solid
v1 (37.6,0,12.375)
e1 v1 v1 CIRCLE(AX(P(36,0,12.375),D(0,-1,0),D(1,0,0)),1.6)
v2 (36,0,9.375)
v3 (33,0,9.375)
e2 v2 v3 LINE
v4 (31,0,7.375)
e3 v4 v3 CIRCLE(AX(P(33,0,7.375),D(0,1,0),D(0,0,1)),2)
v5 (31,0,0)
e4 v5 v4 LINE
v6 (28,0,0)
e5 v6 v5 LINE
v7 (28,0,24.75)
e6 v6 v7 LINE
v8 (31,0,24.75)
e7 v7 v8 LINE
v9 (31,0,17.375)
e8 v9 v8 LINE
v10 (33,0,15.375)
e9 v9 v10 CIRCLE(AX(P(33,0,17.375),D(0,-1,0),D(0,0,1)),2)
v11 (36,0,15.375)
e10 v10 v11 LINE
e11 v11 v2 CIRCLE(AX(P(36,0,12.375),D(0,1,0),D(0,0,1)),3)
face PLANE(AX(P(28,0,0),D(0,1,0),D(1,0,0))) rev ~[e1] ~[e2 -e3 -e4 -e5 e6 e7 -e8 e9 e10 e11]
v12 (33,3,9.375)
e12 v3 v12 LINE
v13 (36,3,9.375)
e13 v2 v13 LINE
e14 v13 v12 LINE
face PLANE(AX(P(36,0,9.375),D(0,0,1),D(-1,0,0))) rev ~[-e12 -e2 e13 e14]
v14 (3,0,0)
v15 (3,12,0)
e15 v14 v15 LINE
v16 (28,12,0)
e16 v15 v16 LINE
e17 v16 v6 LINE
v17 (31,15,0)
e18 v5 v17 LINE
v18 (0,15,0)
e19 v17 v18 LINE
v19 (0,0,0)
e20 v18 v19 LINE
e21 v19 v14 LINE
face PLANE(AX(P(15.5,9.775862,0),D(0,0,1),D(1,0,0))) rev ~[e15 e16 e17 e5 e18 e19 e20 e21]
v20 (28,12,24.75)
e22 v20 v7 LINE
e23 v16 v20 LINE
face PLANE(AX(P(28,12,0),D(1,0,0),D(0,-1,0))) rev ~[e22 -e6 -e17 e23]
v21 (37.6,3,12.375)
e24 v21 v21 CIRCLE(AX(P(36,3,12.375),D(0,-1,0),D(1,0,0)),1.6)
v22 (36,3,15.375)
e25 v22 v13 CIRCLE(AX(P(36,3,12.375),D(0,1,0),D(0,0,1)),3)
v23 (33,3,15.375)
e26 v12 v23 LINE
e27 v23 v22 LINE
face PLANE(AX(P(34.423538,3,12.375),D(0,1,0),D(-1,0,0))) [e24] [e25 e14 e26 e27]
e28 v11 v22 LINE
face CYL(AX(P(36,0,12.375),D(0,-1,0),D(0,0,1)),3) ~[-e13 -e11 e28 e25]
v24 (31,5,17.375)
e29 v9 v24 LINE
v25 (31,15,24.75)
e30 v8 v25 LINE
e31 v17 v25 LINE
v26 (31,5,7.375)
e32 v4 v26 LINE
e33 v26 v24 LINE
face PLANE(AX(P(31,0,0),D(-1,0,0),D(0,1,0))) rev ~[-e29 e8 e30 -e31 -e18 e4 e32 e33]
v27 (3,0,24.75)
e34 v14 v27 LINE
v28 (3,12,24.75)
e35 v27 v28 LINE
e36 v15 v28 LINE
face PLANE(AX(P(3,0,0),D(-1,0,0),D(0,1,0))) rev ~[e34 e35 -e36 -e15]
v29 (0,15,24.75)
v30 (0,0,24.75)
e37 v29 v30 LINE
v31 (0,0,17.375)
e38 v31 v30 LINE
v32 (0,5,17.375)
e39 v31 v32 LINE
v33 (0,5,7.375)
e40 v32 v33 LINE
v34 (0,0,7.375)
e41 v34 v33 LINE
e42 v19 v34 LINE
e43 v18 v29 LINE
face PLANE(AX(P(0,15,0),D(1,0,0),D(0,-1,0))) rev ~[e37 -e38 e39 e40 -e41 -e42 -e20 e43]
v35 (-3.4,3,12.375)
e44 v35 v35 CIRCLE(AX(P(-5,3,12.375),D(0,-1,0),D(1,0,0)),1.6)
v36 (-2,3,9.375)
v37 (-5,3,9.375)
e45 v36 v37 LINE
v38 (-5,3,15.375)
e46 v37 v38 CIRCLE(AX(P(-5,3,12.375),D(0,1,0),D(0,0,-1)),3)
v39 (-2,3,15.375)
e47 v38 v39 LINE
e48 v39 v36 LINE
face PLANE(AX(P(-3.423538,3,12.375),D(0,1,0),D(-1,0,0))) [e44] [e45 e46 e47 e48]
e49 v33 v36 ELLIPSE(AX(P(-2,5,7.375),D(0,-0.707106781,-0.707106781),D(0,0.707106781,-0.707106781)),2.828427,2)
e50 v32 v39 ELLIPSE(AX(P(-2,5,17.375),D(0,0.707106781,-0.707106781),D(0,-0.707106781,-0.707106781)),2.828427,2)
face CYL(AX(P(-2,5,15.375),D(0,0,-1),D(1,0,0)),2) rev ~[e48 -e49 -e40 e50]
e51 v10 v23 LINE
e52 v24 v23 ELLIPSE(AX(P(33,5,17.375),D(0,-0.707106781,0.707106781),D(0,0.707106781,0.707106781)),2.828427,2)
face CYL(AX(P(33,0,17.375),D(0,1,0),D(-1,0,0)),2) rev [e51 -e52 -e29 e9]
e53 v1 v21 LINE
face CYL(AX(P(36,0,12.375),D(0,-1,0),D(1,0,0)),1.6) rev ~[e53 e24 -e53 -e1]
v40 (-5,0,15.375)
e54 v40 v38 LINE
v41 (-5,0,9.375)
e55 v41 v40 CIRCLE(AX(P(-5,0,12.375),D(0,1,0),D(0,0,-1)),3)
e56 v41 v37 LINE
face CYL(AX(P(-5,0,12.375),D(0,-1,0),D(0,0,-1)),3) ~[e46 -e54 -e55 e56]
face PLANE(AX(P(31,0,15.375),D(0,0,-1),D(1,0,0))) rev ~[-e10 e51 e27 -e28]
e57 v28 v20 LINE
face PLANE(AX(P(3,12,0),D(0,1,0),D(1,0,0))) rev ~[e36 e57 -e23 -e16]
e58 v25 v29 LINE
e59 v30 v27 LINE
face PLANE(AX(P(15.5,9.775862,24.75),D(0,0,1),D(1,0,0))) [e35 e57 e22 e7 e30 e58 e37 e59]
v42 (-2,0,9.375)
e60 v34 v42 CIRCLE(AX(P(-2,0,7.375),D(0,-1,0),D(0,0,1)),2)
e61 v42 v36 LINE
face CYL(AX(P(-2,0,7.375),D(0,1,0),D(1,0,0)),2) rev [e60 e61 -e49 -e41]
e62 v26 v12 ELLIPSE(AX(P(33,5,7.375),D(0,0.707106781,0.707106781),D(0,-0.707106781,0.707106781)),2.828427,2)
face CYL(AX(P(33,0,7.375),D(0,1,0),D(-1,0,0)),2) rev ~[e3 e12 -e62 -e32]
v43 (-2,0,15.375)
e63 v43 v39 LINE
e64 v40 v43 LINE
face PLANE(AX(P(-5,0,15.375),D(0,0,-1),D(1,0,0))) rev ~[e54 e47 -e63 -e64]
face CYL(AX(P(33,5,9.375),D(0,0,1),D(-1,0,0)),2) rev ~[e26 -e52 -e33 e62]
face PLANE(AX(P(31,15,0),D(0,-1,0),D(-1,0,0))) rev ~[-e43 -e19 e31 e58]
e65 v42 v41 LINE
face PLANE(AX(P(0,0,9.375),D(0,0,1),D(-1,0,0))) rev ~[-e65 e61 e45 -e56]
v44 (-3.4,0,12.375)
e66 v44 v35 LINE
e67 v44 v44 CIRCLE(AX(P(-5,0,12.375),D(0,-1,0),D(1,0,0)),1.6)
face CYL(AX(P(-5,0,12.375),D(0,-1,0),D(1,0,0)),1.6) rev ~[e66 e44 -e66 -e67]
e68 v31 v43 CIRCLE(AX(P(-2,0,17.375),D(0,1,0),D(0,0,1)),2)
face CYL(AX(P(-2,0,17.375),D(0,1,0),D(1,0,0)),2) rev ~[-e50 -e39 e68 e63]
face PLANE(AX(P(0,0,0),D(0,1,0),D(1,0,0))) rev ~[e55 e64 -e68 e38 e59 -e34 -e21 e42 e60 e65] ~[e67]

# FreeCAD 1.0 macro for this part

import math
import FreeCAD as App
import Part
import Sketcher

V = App.Vector


def edges_at(feature, points):
    """Names of the edges that pass closest to the given points."""
    edges = feature.Shape.Edges
    near = lambda p: min(range(len(edges)), key=lambda i: edges[i].distToShape(Part.Vertex(*p))[0])
    return sorted({f"Edge{near(p) + 1}" for p in points})

doc = App.newDocument("Part")
params = doc.addObject("Spreadsheet::Sheet", "Params")
for row, (alias, value) in enumerate([
    ("sketch1_width", "3 mm"),
    ("sketch1_width2", "25 mm"),
    ("sketch1_height", "12 mm"),
    ("sketch1_height2", "15 mm"),
    ("pad1_length", "24.75 mm"),
    ("sketch2_radius", "3 mm"),
    ("sketch2_diameter", "3.2 mm"),
    ("sketch2_width", "5 mm"),
    ("pad2_length", "3 mm"),
    ("fillet_radius", "2 mm"),
    ("fillet2_radius", "2 mm"),
], start=1):
    params.set(f"A{row}", alias)
    params.set(f"B{row}", "=" + value)
    params.setAlias(f"B{row}", alias)

body = doc.addObject("PartDesign::Body", "Body")

sketch1 = doc.addObject("Sketcher::SketchObject", "Sketch")
body.addObject(sketch1)
sketch1.AttachmentSupport = (doc.XY_Plane, [""])
sketch1.MapMode = "FlatFace"
sketch1.addGeometry([
    Part.LineSegment(V(0, 0, 0), V(3, 0, 0)),
    Part.LineSegment(V(3, 0, 0), V(3, 12, 0)),
    Part.LineSegment(V(3, 12, 0), V(28, 12, 0)),
    Part.LineSegment(V(28, 12, 0), V(28, 0, 0)),
    Part.LineSegment(V(28, 0, 0), V(31, 0, 0)),
    Part.LineSegment(V(31, 0, 0), V(31, 15, 0)),
    Part.LineSegment(V(31, 15, 0), V(0, 15, 0)),
    Part.LineSegment(V(0, 15, 0), V(0, 0, 0)),
], False)
sketch1.addConstraint([
    Sketcher.Constraint("Coincident", 0, 2, 1, 1),
    Sketcher.Constraint("Coincident", 1, 2, 2, 1),
    Sketcher.Constraint("Coincident", 2, 2, 3, 1),
    Sketcher.Constraint("Coincident", 3, 2, 4, 1),
    Sketcher.Constraint("Coincident", 4, 2, 5, 1),
    Sketcher.Constraint("Coincident", 5, 2, 6, 1),
    Sketcher.Constraint("Coincident", 6, 2, 7, 1),
    Sketcher.Constraint("Coincident", 7, 2, 0, 1),
    Sketcher.Constraint("Horizontal", 0),
    Sketcher.Constraint("Vertical", 1),
    Sketcher.Constraint("Horizontal", 2),
    Sketcher.Constraint("Vertical", 3),
    Sketcher.Constraint("Horizontal", 4),
    Sketcher.Constraint("Vertical", 5),
    Sketcher.Constraint("Horizontal", 6),
    Sketcher.Constraint("Vertical", 7),
    Sketcher.Constraint("Coincident", 7, 2, -1, 1),
    Sketcher.Constraint("PointOnObject", 3, 2, -1),
    Sketcher.Constraint("Equal", 0, 4),
    Sketcher.Constraint("DistanceX", 0, 1, 0, 2, 3.0),
    Sketcher.Constraint("DistanceX", 2, 1, 2, 2, 25.0),
    Sketcher.Constraint("DistanceY", 1, 1, 1, 2, 12.0),
    Sketcher.Constraint("DistanceY", 5, 1, 5, 2, 15.0),
])
sketch1.setExpression("Constraints[19]", "Params.sketch1_width")
sketch1.setExpression("Constraints[20]", "Params.sketch1_width2")
sketch1.setExpression("Constraints[21]", "Params.sketch1_height")
sketch1.setExpression("Constraints[22]", "Params.sketch1_height2")
pad1 = doc.addObject("PartDesign::Pad", "Pad")
body.addObject(pad1)
pad1.Profile = sketch1
pad1.setExpression("Length", "Params.pad1_length")

sketch2 = doc.addObject("Sketcher::SketchObject", "Sketch001")
body.addObject(sketch2)
sketch2.AttachmentSupport = (doc.XZ_Plane, [""])
sketch2.MapMode = "FlatFace"
sketch2.addGeometry([
    Part.LineSegment(V(31, 9.4, 0), V(36, 9.4, 0)),
    Part.ArcOfCircle(Part.Circle(V(36, 12.4, 0), V(0, 0, 1), 3), math.radians(-90), math.radians(90)),
    Part.LineSegment(V(36, 15.4, 0), V(31, 15.4, 0)),
    Part.LineSegment(V(31, 15.4, 0), V(31, 9.4, 0)),
    Part.Circle(V(36, 12.4, 0), V(0, 0, 1), 1.6),
    Part.LineSegment(V(0, 9.4, 0), V(0, 15.4, 0)),
    Part.LineSegment(V(0, 15.4, 0), V(-5, 15.4, 0)),
    Part.ArcOfCircle(Part.Circle(V(-5, 12.4, 0), V(0, 0, 1), 3), math.radians(90), math.radians(270)),
    Part.LineSegment(V(-5, 9.4, 0), V(0, 9.4, 0)),
    Part.Circle(V(-5, 12.4, 0), V(0, 0, 1), 1.6),
], False)
sketch2.addConstraint([
    Sketcher.Constraint("Tangent", 0, 2, 1, 1),
    Sketcher.Constraint("Tangent", 1, 2, 2, 1),
    Sketcher.Constraint("Coincident", 2, 2, 3, 1),
    Sketcher.Constraint("Coincident", 3, 2, 0, 1),
    Sketcher.Constraint("Coincident", 5, 2, 6, 1),
    Sketcher.Constraint("Tangent", 6, 2, 7, 1),
    Sketcher.Constraint("Tangent", 7, 2, 8, 1),
    Sketcher.Constraint("Coincident", 8, 2, 5, 1),
    Sketcher.Constraint("Horizontal", 0),
    Sketcher.Constraint("Horizontal", 2),
    Sketcher.Constraint("Vertical", 3),
    Sketcher.Constraint("Vertical", 5),
    Sketcher.Constraint("Horizontal", 6),
    Sketcher.Constraint("Horizontal", 8),
    Sketcher.Constraint("Coincident", 4, 3, 1, 3),
    Sketcher.Constraint("Coincident", 9, 3, 7, 3),
    Sketcher.Constraint("Equal", 1, 7),
    Sketcher.Constraint("Equal", 4, 9),
    Sketcher.Constraint("PointOnObject", 5, 2, -2),
    Sketcher.Constraint("Horizontal", 4, 3, 7, 3),
    Sketcher.Constraint("Equal", 2, 6),
    Sketcher.Constraint("Radius", 1, 3.0),
    Sketcher.Constraint("Diameter", 4, 3.2),
    Sketcher.Constraint("DistanceX", 0, 1, 0, 2, 5.0),
    Sketcher.Constraint("DistanceX", -1, 1, 1, 3, 36.0),
    Sketcher.Constraint("DistanceY", -1, 1, 1, 3, 12.375),
])
sketch2.setExpression("Constraints[21]", "Params.sketch2_radius")
sketch2.setExpression("Constraints[22]", "Params.sketch2_diameter")
sketch2.setExpression("Constraints[23]", "Params.sketch2_width")
pad2 = doc.addObject("PartDesign::Pad", "Pad001")
body.addObject(pad2)
pad2.Profile = sketch2
pad2.setExpression("Length", "Params.pad2_length")
pad2.Reversed = True
doc.recompute()

fillet = doc.addObject("PartDesign::Fillet", "Fillet")
body.addObject(fillet)
fillet.Base = (pad2, edges_at(pad2, [(31, 3, 12.375), (31, 1.5, 9.375), (31, 1.5, 15.375)]))
fillet.setExpression("Radius", "Params.fillet_radius")
doc.recompute()

fillet2 = doc.addObject("PartDesign::Fillet", "Fillet001")
body.addObject(fillet2)
fillet2.Base = (fillet, edges_at(fillet, [(0, 3, 12.375), (0, 1.5, 15.375), (0, 1.5, 9.375)]))
fillet2.setExpression("Radius", "Params.fillet2_radius")

doc.recompute()
